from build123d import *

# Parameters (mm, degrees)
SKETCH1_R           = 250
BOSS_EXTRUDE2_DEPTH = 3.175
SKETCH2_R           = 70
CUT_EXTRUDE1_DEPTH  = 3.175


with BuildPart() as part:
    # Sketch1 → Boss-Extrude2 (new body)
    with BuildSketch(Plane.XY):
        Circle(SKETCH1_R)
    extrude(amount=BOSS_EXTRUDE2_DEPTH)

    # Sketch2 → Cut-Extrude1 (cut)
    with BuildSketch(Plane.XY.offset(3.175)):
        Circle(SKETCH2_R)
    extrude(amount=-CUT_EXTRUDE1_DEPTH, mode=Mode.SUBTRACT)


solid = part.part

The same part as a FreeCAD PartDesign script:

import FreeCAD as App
import Part
import Sketcher
Q = App.Units.Quantity

doc = App.newDocument("Part")
body = doc.addObject("PartDesign::Body", "Body")

# Sketch on XY plane
sketch1 = doc.addObject("Sketcher::SketchObject", "Sketch")
body.addObject(sketch1)
sketch1.AttachmentSupport = (doc.XY_Plane, [""])
sketch1.MapMode = "FlatFace"
sketch1.addGeometry(Part.Circle(App.Vector(0, 0, 0), App.Vector(0, 0, 1), 250), False)
sketch1.addConstraint([
    Sketcher.Constraint("Coincident", 0, 3, -1, 1),
    Sketcher.Constraint("Diameter", 0, Q("500 mm")),
])
pad1 = doc.addObject("PartDesign::Pad", "Pad")
body.addObject(pad1)
pad1.Profile = sketch1
pad1.Length = 3.175

# Sketch on XY plane
sketch2 = doc.addObject("Sketcher::SketchObject", "Sketch001")
body.addObject(sketch2)
sketch2.AttachmentSupport = (doc.XY_Plane, [""])
sketch2.MapMode = "FlatFace"
sketch2.AttachmentOffset = App.Placement(App.Vector(0, 0, 3.175), App.Rotation())
sketch2.addGeometry(Part.Circle(App.Vector(0, 0, 0), App.Vector(0, 0, 1), 70), False)
sketch2.addConstraint([
    Sketcher.Constraint("Coincident", 0, 3, -1, 1),
    Sketcher.Constraint("Diameter", 0, Q("140 mm")),
])
pocket1 = doc.addObject("PartDesign::Pocket", "Pocket")
body.addObject(pocket1)
pocket1.Profile = sketch2
pocket1.Length = 3.175

doc.recompute()
